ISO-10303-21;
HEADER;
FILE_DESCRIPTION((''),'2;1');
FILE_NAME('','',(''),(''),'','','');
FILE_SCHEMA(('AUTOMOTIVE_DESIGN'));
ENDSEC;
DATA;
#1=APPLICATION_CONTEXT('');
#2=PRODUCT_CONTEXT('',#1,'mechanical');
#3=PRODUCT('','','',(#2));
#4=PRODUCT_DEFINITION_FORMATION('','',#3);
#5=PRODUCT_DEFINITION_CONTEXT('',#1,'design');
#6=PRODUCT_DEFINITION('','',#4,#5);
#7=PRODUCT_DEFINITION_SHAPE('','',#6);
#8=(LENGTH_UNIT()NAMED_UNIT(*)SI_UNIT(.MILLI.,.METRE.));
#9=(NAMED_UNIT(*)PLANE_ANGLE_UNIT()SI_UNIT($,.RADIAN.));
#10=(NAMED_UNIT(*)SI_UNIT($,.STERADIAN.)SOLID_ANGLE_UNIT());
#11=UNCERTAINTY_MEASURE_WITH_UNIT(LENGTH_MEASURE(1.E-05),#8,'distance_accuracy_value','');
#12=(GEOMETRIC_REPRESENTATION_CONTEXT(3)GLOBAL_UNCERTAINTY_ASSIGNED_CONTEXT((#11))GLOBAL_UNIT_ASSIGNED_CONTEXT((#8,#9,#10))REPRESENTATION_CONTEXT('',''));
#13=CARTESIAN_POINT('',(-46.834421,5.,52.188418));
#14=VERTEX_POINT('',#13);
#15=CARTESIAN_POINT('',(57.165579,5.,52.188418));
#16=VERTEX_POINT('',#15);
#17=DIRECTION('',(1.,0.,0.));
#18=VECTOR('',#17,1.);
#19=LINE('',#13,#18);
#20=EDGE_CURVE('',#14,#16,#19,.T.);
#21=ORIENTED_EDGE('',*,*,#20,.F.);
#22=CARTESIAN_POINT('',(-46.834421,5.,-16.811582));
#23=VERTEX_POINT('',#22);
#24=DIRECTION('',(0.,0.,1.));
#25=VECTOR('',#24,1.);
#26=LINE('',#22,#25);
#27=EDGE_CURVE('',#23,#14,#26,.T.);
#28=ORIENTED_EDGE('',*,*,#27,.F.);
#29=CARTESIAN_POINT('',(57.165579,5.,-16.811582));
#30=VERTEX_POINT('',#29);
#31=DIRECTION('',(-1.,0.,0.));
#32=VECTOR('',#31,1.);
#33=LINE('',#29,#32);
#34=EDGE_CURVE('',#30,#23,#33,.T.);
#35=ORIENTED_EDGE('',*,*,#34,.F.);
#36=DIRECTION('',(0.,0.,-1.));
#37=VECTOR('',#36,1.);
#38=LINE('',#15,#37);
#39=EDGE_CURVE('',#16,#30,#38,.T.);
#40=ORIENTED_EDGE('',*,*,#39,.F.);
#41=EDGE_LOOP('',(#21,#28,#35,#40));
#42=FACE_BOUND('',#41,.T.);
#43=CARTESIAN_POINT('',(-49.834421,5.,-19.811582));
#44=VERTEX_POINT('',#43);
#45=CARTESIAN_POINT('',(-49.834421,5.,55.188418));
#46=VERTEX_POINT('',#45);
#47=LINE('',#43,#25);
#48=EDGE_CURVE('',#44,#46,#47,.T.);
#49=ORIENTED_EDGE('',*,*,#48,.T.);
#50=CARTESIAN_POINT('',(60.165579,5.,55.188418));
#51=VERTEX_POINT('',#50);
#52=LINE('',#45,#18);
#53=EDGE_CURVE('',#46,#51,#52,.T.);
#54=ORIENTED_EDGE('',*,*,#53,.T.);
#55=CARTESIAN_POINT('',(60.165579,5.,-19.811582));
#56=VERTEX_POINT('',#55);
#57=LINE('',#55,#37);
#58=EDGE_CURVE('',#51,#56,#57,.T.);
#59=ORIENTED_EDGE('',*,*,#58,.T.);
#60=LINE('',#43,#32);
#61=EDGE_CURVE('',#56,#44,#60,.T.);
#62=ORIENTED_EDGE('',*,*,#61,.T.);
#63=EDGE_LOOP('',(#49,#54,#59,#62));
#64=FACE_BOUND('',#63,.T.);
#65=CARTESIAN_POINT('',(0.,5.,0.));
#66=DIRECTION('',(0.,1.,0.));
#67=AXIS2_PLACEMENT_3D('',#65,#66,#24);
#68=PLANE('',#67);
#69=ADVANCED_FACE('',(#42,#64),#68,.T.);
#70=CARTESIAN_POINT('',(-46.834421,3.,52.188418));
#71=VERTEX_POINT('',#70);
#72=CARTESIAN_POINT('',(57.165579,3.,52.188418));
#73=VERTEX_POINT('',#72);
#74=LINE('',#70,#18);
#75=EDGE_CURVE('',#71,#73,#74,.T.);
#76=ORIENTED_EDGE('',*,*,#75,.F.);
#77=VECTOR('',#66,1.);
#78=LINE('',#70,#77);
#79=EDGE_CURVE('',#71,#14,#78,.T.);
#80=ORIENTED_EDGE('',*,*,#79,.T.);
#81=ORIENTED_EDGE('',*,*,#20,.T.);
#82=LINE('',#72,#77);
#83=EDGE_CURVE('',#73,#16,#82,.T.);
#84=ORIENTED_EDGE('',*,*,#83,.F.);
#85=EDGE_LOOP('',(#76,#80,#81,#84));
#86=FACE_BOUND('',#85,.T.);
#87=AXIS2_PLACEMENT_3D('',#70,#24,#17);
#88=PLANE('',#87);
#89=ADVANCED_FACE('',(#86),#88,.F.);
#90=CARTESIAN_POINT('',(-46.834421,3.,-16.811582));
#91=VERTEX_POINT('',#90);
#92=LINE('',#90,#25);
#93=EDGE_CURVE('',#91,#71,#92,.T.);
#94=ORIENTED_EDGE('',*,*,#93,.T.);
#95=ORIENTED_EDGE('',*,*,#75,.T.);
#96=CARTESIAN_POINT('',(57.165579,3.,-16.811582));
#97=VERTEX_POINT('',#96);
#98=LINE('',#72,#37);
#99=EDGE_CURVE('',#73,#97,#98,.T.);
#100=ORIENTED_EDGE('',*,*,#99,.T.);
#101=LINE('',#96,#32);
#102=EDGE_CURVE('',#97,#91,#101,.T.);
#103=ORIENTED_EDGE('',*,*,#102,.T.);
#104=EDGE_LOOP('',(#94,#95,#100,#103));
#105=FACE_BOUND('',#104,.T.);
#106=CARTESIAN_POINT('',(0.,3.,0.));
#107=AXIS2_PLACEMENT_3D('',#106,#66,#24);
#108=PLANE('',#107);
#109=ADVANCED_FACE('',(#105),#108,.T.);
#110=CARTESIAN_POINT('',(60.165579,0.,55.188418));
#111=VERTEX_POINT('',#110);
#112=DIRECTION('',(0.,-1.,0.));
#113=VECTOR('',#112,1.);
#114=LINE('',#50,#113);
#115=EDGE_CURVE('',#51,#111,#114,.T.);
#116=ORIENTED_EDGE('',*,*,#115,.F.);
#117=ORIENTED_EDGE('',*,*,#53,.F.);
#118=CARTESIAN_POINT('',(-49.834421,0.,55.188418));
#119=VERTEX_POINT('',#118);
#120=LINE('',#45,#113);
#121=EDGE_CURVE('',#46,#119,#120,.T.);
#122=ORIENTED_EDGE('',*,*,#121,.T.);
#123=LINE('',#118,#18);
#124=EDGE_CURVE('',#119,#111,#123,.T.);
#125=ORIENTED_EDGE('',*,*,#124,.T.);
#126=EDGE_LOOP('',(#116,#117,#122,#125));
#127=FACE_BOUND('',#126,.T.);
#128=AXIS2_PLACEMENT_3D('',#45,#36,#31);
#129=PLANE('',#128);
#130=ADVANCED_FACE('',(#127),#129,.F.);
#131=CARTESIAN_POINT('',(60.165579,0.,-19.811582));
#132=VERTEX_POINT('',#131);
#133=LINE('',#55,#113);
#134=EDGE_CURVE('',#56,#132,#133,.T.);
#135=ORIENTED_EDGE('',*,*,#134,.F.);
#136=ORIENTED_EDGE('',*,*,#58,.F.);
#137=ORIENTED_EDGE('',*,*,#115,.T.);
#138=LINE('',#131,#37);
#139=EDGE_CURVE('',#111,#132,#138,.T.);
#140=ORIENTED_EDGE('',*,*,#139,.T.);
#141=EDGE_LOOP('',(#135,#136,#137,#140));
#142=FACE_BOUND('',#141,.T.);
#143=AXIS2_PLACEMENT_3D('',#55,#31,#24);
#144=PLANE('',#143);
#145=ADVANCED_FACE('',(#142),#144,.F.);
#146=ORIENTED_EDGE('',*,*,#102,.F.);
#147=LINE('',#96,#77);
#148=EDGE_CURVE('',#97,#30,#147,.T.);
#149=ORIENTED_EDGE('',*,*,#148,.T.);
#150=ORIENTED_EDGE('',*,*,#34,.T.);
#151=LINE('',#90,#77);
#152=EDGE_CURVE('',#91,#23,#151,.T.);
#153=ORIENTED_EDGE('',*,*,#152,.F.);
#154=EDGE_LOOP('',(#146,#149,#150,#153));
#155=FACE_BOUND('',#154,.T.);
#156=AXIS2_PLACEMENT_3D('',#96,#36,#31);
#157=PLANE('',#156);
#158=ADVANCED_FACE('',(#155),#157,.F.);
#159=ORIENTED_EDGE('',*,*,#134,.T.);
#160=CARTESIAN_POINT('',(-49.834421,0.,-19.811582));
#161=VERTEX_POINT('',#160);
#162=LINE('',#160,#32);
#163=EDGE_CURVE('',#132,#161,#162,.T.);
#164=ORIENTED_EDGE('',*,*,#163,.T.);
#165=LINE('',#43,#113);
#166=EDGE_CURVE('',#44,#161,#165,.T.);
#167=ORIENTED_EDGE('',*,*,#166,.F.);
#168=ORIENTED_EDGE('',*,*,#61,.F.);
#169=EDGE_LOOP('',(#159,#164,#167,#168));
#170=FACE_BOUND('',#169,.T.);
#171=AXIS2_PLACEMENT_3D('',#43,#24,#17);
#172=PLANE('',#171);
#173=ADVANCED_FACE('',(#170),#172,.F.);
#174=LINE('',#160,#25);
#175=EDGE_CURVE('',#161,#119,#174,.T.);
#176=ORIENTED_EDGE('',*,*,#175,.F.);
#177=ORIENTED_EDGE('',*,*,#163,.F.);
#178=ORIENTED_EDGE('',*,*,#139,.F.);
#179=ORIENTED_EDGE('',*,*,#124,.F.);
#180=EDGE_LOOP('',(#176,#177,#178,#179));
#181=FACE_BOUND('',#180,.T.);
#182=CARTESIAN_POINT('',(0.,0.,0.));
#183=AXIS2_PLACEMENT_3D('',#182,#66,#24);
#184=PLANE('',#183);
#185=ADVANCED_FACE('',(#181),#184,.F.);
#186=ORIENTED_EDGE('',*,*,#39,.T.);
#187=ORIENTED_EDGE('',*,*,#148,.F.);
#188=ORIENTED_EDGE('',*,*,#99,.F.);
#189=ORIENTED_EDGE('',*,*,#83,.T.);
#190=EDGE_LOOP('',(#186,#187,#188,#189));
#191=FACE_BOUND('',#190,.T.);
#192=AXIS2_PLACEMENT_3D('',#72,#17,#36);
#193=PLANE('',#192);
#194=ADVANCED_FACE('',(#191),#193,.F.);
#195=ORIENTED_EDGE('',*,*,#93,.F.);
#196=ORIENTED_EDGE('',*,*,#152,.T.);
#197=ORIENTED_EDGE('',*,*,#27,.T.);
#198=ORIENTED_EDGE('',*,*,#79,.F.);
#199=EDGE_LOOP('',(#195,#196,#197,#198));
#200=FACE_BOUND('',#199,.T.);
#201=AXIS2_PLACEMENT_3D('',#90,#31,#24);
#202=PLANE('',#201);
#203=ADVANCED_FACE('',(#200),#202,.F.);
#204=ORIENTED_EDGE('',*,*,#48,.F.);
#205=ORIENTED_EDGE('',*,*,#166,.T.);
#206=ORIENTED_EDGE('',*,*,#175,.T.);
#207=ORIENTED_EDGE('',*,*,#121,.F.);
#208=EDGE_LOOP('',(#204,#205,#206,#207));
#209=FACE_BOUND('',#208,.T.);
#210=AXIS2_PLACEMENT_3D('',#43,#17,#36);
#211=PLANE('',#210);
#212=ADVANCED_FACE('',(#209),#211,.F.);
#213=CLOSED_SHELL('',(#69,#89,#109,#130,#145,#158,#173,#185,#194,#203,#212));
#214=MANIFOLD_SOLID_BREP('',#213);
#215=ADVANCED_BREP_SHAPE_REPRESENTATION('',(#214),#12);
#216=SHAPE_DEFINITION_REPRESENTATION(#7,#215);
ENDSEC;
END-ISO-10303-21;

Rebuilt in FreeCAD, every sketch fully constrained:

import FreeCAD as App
import Part
import Sketcher


def add_polygon(sketch, points):
    """Adds a closed chain of lines whose ends are joined by coincident constraints."""
    first, n = sketch.GeometryCount, len(points)
    for a, b in zip(points, points[1:] + points[:1]):
        sketch.addGeometry(Part.LineSegment(App.Vector(*a, 0), App.Vector(*b, 0)), False)
    for i in range(n):
        sketch.addConstraint(Sketcher.Constraint("Coincident", first + i, 2, first + (i + 1) % n, 1))

doc = App.newDocument("Part")
body = doc.addObject("PartDesign::Body", "Body")

# Sketch on XZ plane
sketch1 = doc.addObject("Sketcher::SketchObject", "Sketch")
body.addObject(sketch1)
sketch1.AttachmentSupport = (doc.XZ_Plane, [""])
sketch1.MapMode = "FlatFace"
add_polygon(sketch1, [(-50, -20), (-50, 55), (60, 55), (60, -20)])  # lines 0-3
sketch1.addConstraint([
    Sketcher.Constraint("Vertical", 0),
    Sketcher.Constraint("Horizontal", 1),
    Sketcher.Constraint("Vertical", 2),
    Sketcher.Constraint("Horizontal", 3),
    Sketcher.Constraint("DistanceX", 1, 1, 1, 2, 110.0),
    Sketcher.Constraint("DistanceY", 0, 1, 0, 2, 75.0),
    Sketcher.Constraint("DistanceX", 0, 2, -1, 1, 49.834421),
    Sketcher.Constraint("DistanceY", -1, 1, 0, 2, 55.188418),
])
pad1 = doc.addObject("PartDesign::Pad", "Pad")
body.addObject(pad1)
pad1.Profile = sketch1
pad1.Length = 5
pad1.Reversed = True

# Sketch on XZ plane
sketch2 = doc.addObject("Sketcher::SketchObject", "Sketch001")
body.addObject(sketch2)
sketch2.AttachmentSupport = (doc.XZ_Plane, [""])
sketch2.MapMode = "FlatFace"
sketch2.AttachmentOffset = App.Placement(App.Vector(0, 0, -5), App.Rotation())
add_polygon(sketch2, [(-47, -17), (-47, 52), (57, 52), (57, -17)])  # lines 0-3
sketch2.addConstraint([
    Sketcher.Constraint("Vertical", 0),
    Sketcher.Constraint("Horizontal", 1),
    Sketcher.Constraint("Vertical", 2),
    Sketcher.Constraint("Horizontal", 3),
    Sketcher.Constraint("DistanceX", 1, 1, 1, 2, 104.0),
    Sketcher.Constraint("DistanceY", 0, 1, 0, 2, 69.0),
    Sketcher.Constraint("DistanceX", 0, 2, -1, 1, 46.834421),
    Sketcher.Constraint("DistanceY", -1, 1, 0, 2, 52.188418),
])
pocket1 = doc.addObject("PartDesign::Pocket", "Pocket")
body.addObject(pocket1)
pocket1.Profile = sketch2
pocket1.Length = 2
pocket1.Reversed = True

doc.recompute()
